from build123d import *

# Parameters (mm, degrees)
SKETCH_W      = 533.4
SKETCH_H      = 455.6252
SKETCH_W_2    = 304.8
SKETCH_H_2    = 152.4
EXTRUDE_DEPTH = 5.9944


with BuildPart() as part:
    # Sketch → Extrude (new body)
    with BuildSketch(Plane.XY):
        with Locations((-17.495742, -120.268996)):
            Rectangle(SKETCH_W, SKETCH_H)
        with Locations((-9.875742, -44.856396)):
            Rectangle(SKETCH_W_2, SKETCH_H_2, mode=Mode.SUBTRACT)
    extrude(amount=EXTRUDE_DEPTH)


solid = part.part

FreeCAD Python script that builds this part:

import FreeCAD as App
import Part
import Sketcher

V = App.Vector
Q = App.Units.Quantity

doc = App.newDocument("Part")
body = doc.addObject("PartDesign::Body", "Body")

# Sketch on XY plane
sketch1 = doc.addObject("Sketcher::SketchObject", "Sketch")
body.addObject(sketch1)
sketch1.AttachmentSupport = (doc.XY_Plane, [""])
sketch1.MapMode = "FlatFace"
sketch1.addGeometry([
    Part.LineSegment(V(-284.195742, 107.543604, 0), V(-284.195742, -348.081596, 0)),  # 0
    Part.LineSegment(V(-284.195742, -348.081596, 0), V(249.204258, -348.081596, 0)),  # 1
    Part.LineSegment(V(249.204258, -348.081596, 0), V(249.204258, 107.543604, 0)),  # 2
    Part.LineSegment(V(249.204258, 107.543604, 0), V(-284.195742, 107.543604, 0)),  # 3
    Part.LineSegment(V(142.524258, -121.056396, 0), V(-162.275742, -121.056396, 0)),  # 4
    Part.LineSegment(V(-162.275742, -121.056396, 0), V(-162.275742, 31.343604, 0)),  # 5
    Part.LineSegment(V(-162.275742, 31.343604, 0), V(142.524258, 31.343604, 0)),  # 6
    Part.LineSegment(V(142.524258, 31.343604, 0), V(142.524258, -121.056396, 0)),  # 7
], False)
sketch1.addConstraint([
    Sketcher.Constraint("Coincident", 0, 2, 1, 1),
    Sketcher.Constraint("Coincident", 1, 2, 2, 1),
    Sketcher.Constraint("Coincident", 2, 2, 3, 1),
    Sketcher.Constraint("Coincident", 3, 2, 0, 1),
    Sketcher.Constraint("Coincident", 4, 2, 5, 1),
    Sketcher.Constraint("Coincident", 5, 2, 6, 1),
    Sketcher.Constraint("Coincident", 6, 2, 7, 1),
    Sketcher.Constraint("Coincident", 7, 2, 4, 1),
    Sketcher.Constraint("Vertical", 0),
    Sketcher.Constraint("Horizontal", 1),
    Sketcher.Constraint("Vertical", 2),
    Sketcher.Constraint("Horizontal", 3),
    Sketcher.Constraint("Horizontal", 4),
    Sketcher.Constraint("Vertical", 5),
    Sketcher.Constraint("Horizontal", 6),
    Sketcher.Constraint("Vertical", 7),
    Sketcher.Constraint("DistanceX", 1, 1, 1, 2, Q("21 in")),
    Sketcher.Constraint("DistanceX", 4, 2, 4, 1, Q("12 in")),
    Sketcher.Constraint("DistanceY", 5, 1, 5, 2, Q("6 in")),
    Sketcher.Constraint("DistanceY", 4, 2, 3, 2, Q("9 in")),
    Sketcher.Constraint("DistanceX", 0, 2, 4, 2, Q("4.8 in")),
    Sketcher.Constraint("DistanceY", 0, 2, 0, 1, Q("17.938 in")),
    Sketcher.Constraint("DistanceY", 0, 2, -1, 1, Q("13.7039998 in")),
    Sketcher.Constraint("DistanceX", 0, 2, -1, 1, 284.195742),
])
pad1 = doc.addObject("PartDesign::Pad", "Pad")
body.addObject(pad1)
pad1.Profile = sketch1
pad1.Length = Q("0.236 in")

doc.recompute()
